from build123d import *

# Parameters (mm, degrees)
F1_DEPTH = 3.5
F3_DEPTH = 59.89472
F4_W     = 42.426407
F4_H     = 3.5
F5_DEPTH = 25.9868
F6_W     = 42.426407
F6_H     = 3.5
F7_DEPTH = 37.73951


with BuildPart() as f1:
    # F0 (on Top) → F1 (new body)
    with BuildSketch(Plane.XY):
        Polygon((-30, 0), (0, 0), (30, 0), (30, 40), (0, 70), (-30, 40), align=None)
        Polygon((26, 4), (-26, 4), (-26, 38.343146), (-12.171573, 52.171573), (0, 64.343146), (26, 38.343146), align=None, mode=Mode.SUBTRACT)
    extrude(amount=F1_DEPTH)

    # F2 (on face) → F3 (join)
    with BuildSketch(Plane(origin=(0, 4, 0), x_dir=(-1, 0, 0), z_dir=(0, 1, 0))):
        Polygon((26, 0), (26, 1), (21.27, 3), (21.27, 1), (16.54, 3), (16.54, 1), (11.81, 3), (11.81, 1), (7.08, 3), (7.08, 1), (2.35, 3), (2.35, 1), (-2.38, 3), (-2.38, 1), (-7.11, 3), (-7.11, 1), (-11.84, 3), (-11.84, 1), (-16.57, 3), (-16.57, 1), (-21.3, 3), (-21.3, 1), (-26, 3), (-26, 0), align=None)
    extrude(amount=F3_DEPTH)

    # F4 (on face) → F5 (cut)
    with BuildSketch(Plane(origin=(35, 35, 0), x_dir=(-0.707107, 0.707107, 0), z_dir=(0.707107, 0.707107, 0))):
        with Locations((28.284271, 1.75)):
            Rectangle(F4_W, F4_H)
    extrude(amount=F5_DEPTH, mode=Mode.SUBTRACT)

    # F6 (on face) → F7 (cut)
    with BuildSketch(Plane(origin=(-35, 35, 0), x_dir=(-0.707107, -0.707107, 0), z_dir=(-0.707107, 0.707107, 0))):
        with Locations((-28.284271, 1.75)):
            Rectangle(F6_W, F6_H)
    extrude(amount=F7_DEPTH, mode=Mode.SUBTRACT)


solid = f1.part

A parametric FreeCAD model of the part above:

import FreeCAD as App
import Part
import Sketcher
from FreeCAD import Vector


def add_polygon(sketch, points):
    """Adds a closed chain of lines whose ends are joined by coincident constraints."""
    first, n = sketch.GeometryCount, len(points)
    for a, b in zip(points, points[1:] + points[:1]):
        sketch.addGeometry(Part.LineSegment(App.Vector(*a, 0), App.Vector(*b, 0)), False)
    for i in range(n):
        sketch.addConstraint(Sketcher.Constraint("Coincident", first + i, 2, first + (i + 1) % n, 1))

doc = App.newDocument("Part")
body = doc.addObject("PartDesign::Body", "Body")

sketch1 = body.newObject("Sketcher::SketchObject", "Sketch")
sketch1.AttachmentSupport = (doc.getObject("XY_Plane"), [""])
sketch1.MapMode = "FlatFace"
add_polygon(sketch1, [(-30, 0), (30, 0), (30, 40), (0, 70), (-30, 40)])
add_polygon(sketch1, [(26, 38), (26, 4), (-26, 4), (-26, 38), (0, 64)])
sketch1.addConstraint([
    Sketcher.Constraint("Horizontal", 0),
    Sketcher.Constraint("Vertical", 1),
    Sketcher.Constraint("Vertical", 4),
    Sketcher.Constraint("Vertical", 5),
    Sketcher.Constraint("Horizontal", 6),
    Sketcher.Constraint("Vertical", 7),
    Sketcher.Constraint("Symmetric", 0, 2, 4, 2, -1, 1),
    Sketcher.Constraint("Symmetric", 7, 2, 9, 2, -2),
    Sketcher.Constraint("PointOnObject", 2, 2, -2),
    Sketcher.Constraint("PointOnObject", 8, 2, -2),
    Sketcher.Constraint("Perpendicular", 2, 3),
    Sketcher.Constraint("Parallel", 3, 8),
    Sketcher.Constraint("Perpendicular", 8, 9),
    Sketcher.Constraint("DistanceX", 0, 1, 0, 2, 60.0),
    Sketcher.Constraint("DistanceX", 6, 2, 6, 1, 52.0),
    Sketcher.Constraint("DistanceY", 1, 1, 1, 2, 40.0),
    Sketcher.Constraint("DistanceY", -1, 1, 5, 2, 4.0),
    Sketcher.Constraint("DistanceY", 5, 2, 5, 1, 34.343146),
])
pad1 = body.newObject("PartDesign::Pad", "Pad")
pad1.Profile = sketch1
pad1.Length = 3.5

sketch2 = body.newObject("Sketcher::SketchObject", "Sketch001")
sketch2.AttachmentSupport = (doc.getObject("XZ_Plane"), [""])
sketch2.MapMode = "FlatFace"
sketch2.AttachmentOffset = App.Placement(Vector(0, 0, -4), App.Rotation())
add_polygon(sketch2, [(-26, 0), (-26, 1), (-21.3, 3), (-21.3, 1), (-16.5, 3), (-16.5, 1), (-11.8, 3), (-11.8, 1), (-7.1, 3), (-7.1, 1), (-2.4, 3), (-2.4, 1), (2.4, 3), (2.4, 1), (7.1, 3), (7.1, 1), (11.8, 3), (11.8, 1), (16.6, 3), (16.6, 1), (21.3, 3), (21.3, 1), (26, 3), (26, 0)])
sketch2.addConstraint([
    Sketcher.Constraint("Vertical", 0),
    Sketcher.Constraint("Vertical", 2),
    Sketcher.Constraint("Vertical", 4),
    Sketcher.Constraint("Vertical", 6),
    Sketcher.Constraint("Vertical", 8),
    Sketcher.Constraint("Vertical", 10),
    Sketcher.Constraint("Vertical", 12),
    Sketcher.Constraint("Vertical", 14),
    Sketcher.Constraint("Vertical", 16),
    Sketcher.Constraint("Vertical", 18),
    Sketcher.Constraint("Vertical", 20),
    Sketcher.Constraint("Vertical", 22),
    Sketcher.Constraint("Horizontal", 23),
    Sketcher.Constraint("Symmetric", 22, 2, 23, 2, -1, 1),
    Sketcher.Constraint("Parallel", 1, 3),
    Sketcher.Constraint("Parallel", 3, 5),
    Sketcher.Constraint("Parallel", 5, 7),
    Sketcher.Constraint("Parallel", 7, 9),
    Sketcher.Constraint("Parallel", 9, 11),
    Sketcher.Constraint("Parallel", 11, 13),
    Sketcher.Constraint("Parallel", 13, 15),
    Sketcher.Constraint("Parallel", 15, 17),
    Sketcher.Constraint("Parallel", 17, 19),
    Sketcher.Constraint("Horizontal", 0, 2, 2, 2),
    Sketcher.Constraint("Horizontal", 1, 2, 3, 2),
    Sketcher.Constraint("Horizontal", 2, 2, 4, 2),
    Sketcher.Constraint("Horizontal", 3, 2, 5, 2),
    Sketcher.Constraint("Horizontal", 4, 2, 6, 2),
    Sketcher.Constraint("Horizontal", 5, 2, 7, 2),
    Sketcher.Constraint("Horizontal", 6, 2, 8, 2),
    Sketcher.Constraint("Horizontal", 7, 2, 9, 2),
    Sketcher.Constraint("Horizontal", 8, 2, 10, 2),
    Sketcher.Constraint("Horizontal", 9, 2, 11, 2),
    Sketcher.Constraint("Horizontal", 10, 2, 12, 2),
    Sketcher.Constraint("Horizontal", 11, 2, 13, 2),
    Sketcher.Constraint("Horizontal", 12, 2, 14, 2),
    Sketcher.Constraint("Horizontal", 13, 2, 15, 2),
    Sketcher.Constraint("Horizontal", 14, 2, 16, 2),
    Sketcher.Constraint("Horizontal", 15, 2, 17, 2),
    Sketcher.Constraint("Horizontal", 16, 2, 18, 2),
    Sketcher.Constraint("Horizontal", 17, 2, 19, 2),
    Sketcher.Constraint("Horizontal", 18, 2, 20, 2),
    Sketcher.Constraint("Horizontal", 19, 2, 21, 2),
    Sketcher.Constraint("DistanceX", 23, 2, 23, 1, 52.0),
    Sketcher.Constraint("DistanceY", 0, 1, 0, 2, 1.0),
    Sketcher.Constraint("DistanceY", 2, 2, 2, 1, 2.0),
    Sketcher.Constraint("DistanceX", -1, 1, 19, 2, 21.3),
])
pad2 = body.newObject("PartDesign::Pad", "Pad001")
pad2.Profile = sketch2
pad2.Length = 59.89472
pad2.Reversed = True

sketch3 = body.newObject("Sketcher::SketchObject", "Sketch002")
sketch3.Placement = App.Placement(Vector(35, 35, 0), App.Rotation(Vector(-0.707106781, 0.707106781, 0), Vector(0, 0, 0.999999999), Vector(0.707106781, 0.707106781, 0), "ZXY"))
add_polygon(sketch3, [(7.1, 3.5), (7.1, 0), (49.5, 0), (49.5, 3.5)])
sketch3.addConstraint([
    Sketcher.Constraint("Vertical", 0),
    Sketcher.Constraint("Horizontal", 1),
    Sketcher.Constraint("Vertical", 2),
    Sketcher.Constraint("Horizontal", 3),
    Sketcher.Constraint("PointOnObject", 0, 2, -1),
    Sketcher.Constraint("DistanceY", 0, 2, 0, 1, 3.5),
    Sketcher.Constraint("DistanceX", 1, 1, 1, 2, 42.426407),
    Sketcher.Constraint("DistanceX", -1, 1, 0, 2, 7.071067),
])
pocket1 = body.newObject("PartDesign::Pocket", "Pocket")
pocket1.Profile = sketch3
pocket1.Length = 25.9868
pocket1.Reversed = True

sketch4 = body.newObject("Sketcher::SketchObject", "Sketch003")
sketch4.Placement = App.Placement(Vector(-35, 35, 0), App.Rotation(Vector(-0.707106781, -0.707106781, 0), Vector(0, 0, 0.999999999), Vector(-0.707106781, 0.707106781, 0), "ZXY"))
add_polygon(sketch4, [(-49.5, 3.5), (-49.5, 0), (-7.1, 0), (-7.1, 3.5)])
sketch4.addConstraint([
    Sketcher.Constraint("Vertical", 0),
    Sketcher.Constraint("Horizontal", 1),
    Sketcher.Constraint("Vertical", 2),
    Sketcher.Constraint("Horizontal", 3),
    Sketcher.Constraint("PointOnObject", 0, 2, -1),
    Sketcher.Constraint("DistanceY", 0, 2, 0, 1, 3.5),
    Sketcher.Constraint("DistanceX", 1, 1, 1, 2, 42.426407),
    Sketcher.Constraint("DistanceX", 0, 2, -1, 1, 49.497474),
])
pocket2 = body.newObject("PartDesign::Pocket", "Pocket001")
pocket2.Profile = sketch4
pocket2.Length = 37.73951
pocket2.Reversed = True

doc.recompute()
